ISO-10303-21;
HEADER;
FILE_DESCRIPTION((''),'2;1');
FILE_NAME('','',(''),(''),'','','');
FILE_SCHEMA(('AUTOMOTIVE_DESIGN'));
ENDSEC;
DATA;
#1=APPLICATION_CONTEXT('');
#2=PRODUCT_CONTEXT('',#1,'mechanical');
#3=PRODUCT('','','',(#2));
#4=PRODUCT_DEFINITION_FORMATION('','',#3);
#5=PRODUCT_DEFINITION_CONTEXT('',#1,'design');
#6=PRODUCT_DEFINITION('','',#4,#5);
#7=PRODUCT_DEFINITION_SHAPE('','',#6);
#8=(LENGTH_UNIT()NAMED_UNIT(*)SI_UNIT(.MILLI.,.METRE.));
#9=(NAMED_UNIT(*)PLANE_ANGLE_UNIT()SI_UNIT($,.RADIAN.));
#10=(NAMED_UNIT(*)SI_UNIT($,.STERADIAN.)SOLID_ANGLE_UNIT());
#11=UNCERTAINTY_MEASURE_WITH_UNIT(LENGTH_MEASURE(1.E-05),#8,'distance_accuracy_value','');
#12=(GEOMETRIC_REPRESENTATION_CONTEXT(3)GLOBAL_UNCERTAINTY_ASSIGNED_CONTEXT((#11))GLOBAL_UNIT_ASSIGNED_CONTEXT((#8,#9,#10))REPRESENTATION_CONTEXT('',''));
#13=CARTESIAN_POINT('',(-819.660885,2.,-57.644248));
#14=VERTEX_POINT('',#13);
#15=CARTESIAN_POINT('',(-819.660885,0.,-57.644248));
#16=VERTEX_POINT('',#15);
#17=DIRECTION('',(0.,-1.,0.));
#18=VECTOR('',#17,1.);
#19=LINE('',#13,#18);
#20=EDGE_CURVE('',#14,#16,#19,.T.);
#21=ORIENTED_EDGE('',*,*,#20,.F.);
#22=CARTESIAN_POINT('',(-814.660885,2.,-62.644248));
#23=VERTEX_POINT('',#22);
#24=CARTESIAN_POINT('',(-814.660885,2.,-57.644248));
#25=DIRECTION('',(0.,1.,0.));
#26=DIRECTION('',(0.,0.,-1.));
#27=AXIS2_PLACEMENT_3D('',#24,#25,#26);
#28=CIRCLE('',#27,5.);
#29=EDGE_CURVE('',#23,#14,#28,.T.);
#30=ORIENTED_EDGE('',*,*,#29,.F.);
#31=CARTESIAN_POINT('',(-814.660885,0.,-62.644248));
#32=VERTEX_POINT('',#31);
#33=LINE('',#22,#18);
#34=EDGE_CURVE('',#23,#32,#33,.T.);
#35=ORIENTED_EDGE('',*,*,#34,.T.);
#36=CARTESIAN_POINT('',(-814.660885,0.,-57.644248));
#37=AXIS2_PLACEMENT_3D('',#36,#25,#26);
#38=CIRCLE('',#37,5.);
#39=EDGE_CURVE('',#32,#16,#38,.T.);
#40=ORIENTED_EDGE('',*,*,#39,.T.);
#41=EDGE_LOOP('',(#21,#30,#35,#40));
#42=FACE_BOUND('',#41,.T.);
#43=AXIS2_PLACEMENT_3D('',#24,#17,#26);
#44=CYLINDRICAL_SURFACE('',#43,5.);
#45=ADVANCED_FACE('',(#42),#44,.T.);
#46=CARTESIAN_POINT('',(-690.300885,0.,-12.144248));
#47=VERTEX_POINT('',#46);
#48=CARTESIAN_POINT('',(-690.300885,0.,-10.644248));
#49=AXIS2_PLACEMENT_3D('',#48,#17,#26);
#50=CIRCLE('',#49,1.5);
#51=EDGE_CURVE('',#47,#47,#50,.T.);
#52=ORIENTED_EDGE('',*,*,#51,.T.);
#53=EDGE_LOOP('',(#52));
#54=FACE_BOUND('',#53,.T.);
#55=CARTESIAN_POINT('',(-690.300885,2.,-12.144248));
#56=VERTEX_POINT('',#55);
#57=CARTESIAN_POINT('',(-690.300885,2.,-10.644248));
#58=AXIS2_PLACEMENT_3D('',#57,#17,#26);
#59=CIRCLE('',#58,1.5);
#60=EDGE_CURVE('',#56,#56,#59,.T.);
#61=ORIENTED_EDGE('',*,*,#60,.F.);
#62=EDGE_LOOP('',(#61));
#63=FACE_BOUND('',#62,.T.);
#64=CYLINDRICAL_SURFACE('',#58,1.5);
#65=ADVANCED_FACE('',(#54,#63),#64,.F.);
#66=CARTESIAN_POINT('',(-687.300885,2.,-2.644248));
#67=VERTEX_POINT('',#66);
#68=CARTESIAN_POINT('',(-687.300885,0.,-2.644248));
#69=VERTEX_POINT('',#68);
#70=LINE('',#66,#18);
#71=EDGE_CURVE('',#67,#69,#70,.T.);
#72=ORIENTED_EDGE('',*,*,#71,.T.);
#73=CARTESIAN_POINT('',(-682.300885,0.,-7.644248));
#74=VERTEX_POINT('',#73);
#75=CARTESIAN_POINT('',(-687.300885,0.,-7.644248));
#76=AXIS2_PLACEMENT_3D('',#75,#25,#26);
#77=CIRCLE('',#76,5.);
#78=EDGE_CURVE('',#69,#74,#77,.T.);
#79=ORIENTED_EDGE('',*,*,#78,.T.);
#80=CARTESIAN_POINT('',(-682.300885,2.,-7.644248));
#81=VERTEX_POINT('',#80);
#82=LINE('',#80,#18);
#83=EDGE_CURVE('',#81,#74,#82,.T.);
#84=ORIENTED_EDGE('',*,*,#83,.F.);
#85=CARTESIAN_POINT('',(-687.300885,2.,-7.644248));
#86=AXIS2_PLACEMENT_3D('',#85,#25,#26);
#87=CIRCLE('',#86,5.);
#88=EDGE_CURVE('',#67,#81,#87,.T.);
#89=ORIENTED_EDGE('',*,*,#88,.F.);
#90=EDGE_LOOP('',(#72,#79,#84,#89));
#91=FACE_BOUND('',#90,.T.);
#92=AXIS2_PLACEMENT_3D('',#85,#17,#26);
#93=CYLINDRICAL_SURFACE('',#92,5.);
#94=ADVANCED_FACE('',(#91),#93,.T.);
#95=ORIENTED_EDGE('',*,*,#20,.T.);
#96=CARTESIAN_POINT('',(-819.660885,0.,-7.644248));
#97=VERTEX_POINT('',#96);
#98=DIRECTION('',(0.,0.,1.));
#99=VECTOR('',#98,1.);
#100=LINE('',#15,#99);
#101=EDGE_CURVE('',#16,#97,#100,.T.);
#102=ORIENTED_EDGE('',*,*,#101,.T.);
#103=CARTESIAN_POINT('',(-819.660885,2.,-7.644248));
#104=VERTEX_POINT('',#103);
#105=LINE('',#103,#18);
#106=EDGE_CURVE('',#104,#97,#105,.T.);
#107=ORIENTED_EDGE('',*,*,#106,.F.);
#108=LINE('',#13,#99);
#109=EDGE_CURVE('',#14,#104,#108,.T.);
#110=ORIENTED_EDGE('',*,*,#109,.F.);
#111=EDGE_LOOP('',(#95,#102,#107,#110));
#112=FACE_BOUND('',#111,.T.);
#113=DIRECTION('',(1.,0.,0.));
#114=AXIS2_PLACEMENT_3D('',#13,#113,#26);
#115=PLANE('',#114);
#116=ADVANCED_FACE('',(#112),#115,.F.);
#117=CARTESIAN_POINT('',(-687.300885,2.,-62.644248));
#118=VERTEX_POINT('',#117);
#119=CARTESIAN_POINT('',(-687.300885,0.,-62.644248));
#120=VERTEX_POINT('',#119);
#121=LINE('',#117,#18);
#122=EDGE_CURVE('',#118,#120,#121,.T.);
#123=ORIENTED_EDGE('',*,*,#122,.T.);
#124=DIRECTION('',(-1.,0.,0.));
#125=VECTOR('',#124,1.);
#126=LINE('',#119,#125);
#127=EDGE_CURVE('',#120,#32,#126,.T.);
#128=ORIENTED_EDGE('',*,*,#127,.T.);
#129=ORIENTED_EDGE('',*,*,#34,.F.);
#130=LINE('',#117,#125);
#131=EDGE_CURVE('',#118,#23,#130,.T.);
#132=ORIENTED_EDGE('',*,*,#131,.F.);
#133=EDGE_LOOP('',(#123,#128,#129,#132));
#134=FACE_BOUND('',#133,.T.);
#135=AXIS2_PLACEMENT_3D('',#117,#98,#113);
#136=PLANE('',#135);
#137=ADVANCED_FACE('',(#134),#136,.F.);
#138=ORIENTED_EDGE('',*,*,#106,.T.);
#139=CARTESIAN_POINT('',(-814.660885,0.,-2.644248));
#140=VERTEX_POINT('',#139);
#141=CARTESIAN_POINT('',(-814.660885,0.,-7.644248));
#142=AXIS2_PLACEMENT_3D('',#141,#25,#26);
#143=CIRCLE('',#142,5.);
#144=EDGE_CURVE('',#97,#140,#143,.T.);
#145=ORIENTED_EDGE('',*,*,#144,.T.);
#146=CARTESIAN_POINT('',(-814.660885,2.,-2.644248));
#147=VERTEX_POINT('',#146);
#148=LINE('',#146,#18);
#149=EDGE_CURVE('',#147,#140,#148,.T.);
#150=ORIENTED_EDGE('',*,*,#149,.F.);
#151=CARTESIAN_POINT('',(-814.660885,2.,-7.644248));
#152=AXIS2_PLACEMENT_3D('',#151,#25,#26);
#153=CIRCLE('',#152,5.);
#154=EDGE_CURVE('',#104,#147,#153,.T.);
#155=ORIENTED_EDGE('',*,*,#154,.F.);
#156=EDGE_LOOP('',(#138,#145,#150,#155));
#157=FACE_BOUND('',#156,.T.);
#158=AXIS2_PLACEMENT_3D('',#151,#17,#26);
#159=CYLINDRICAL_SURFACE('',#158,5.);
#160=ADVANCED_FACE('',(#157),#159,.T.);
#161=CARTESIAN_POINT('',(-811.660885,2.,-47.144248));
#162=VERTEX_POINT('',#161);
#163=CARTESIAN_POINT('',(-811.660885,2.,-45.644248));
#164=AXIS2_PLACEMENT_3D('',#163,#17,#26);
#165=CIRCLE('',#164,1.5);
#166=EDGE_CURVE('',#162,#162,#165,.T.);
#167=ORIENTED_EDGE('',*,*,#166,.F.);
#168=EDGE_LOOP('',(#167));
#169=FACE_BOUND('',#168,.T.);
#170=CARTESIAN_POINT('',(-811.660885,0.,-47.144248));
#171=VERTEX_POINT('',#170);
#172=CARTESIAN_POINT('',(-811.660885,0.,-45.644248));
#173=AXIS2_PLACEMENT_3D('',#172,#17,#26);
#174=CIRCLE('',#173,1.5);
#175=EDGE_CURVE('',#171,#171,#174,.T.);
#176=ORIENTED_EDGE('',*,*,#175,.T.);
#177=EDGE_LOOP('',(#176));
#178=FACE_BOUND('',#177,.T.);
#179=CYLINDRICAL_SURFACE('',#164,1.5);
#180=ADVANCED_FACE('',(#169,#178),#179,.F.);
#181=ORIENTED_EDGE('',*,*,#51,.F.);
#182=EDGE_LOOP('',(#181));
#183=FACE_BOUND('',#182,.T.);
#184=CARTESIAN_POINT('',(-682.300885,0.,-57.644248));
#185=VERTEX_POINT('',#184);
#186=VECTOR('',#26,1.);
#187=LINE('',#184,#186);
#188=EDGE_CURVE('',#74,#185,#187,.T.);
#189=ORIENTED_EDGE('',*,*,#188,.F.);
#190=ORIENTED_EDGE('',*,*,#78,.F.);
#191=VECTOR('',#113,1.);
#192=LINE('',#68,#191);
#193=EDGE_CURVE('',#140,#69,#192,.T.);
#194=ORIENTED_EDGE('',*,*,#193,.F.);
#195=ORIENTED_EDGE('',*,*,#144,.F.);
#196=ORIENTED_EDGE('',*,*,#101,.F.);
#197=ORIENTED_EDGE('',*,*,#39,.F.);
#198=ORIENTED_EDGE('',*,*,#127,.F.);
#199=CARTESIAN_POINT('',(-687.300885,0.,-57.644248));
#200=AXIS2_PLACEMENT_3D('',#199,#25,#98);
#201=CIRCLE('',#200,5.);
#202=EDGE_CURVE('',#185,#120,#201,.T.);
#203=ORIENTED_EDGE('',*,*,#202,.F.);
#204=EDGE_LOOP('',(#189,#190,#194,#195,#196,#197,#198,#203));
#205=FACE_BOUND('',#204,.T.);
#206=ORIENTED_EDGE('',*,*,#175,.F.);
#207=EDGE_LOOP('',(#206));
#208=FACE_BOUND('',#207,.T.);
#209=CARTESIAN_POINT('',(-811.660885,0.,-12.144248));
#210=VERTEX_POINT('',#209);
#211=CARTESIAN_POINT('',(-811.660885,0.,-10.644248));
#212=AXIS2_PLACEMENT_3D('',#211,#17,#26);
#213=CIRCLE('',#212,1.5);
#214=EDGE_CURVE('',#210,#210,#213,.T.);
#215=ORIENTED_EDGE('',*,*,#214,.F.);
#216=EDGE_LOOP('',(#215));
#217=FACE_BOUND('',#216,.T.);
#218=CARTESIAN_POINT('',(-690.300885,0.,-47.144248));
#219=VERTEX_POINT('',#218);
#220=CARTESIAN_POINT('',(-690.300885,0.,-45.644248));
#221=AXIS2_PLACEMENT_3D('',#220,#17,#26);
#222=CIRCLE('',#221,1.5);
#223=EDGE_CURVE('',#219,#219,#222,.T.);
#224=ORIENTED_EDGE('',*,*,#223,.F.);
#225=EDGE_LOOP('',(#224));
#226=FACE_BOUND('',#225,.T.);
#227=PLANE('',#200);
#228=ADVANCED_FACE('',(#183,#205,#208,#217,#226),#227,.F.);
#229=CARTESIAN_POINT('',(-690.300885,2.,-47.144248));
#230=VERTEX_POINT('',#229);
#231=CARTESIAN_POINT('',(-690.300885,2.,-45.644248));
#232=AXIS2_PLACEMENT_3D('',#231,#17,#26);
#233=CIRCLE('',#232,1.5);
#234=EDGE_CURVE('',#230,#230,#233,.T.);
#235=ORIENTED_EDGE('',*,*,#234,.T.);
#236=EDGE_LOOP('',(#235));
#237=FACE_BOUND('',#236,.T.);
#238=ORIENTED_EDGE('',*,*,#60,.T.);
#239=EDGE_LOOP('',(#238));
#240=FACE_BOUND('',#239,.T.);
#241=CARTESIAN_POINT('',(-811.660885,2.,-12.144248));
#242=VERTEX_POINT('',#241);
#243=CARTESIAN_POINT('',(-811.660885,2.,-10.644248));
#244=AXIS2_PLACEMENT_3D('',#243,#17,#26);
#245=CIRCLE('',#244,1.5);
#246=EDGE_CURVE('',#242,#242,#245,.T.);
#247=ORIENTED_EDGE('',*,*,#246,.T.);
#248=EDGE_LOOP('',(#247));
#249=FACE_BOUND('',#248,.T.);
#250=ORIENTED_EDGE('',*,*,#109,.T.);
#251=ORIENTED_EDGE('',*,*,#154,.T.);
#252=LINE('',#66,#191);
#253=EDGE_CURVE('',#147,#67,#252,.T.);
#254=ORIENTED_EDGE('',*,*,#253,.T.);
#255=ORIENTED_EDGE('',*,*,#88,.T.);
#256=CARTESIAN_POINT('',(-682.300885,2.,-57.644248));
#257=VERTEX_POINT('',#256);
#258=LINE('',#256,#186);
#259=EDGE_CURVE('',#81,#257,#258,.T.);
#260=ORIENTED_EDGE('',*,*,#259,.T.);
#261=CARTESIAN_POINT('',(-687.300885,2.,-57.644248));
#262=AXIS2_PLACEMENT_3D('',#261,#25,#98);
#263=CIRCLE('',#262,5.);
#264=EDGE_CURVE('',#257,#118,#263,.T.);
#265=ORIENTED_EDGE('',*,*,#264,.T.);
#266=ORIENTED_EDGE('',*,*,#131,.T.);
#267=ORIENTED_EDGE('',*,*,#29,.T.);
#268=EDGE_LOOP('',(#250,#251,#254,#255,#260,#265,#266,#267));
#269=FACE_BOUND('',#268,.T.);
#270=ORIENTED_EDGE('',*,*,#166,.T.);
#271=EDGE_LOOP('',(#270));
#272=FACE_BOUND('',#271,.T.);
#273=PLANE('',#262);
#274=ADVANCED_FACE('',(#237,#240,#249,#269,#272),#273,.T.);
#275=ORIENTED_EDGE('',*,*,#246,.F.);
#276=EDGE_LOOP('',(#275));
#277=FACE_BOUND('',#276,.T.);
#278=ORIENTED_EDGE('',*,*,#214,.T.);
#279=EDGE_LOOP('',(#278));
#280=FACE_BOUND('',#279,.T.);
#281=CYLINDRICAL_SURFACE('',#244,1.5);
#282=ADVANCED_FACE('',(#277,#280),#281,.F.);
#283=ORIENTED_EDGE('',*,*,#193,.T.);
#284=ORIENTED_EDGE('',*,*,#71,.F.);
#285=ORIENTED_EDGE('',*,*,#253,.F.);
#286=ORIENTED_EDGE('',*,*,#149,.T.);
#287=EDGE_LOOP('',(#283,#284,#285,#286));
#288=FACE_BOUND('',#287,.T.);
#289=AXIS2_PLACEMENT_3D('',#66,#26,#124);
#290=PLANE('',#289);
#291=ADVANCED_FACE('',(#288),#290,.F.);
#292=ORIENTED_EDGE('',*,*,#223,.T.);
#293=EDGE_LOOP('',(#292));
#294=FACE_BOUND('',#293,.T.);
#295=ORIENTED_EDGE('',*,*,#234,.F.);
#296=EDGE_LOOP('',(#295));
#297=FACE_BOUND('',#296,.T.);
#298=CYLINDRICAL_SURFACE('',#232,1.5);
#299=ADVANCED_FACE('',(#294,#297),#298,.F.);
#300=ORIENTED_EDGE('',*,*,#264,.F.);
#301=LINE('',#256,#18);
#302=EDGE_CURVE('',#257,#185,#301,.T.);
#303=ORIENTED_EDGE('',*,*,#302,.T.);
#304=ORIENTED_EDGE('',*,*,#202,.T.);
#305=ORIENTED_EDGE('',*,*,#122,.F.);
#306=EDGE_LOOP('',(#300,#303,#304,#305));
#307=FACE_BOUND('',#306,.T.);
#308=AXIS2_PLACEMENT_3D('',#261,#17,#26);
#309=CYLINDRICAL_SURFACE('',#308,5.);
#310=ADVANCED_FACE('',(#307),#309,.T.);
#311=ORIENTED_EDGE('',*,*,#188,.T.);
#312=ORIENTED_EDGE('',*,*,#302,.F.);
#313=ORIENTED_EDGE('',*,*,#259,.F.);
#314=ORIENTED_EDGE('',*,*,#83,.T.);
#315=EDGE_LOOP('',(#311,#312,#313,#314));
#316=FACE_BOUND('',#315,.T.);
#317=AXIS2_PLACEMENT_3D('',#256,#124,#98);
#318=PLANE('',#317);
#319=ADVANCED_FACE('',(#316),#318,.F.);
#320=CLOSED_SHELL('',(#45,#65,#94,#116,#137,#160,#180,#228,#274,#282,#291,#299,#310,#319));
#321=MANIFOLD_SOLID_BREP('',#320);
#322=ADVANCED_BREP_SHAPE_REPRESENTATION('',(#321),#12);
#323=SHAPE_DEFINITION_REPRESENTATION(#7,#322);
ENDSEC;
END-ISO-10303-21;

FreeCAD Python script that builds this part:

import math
import FreeCAD as App
import Part
import Sketcher
from FreeCAD import Vector

doc = App.newDocument("Part")
body = doc.addObject("PartDesign::Body", "Body")

# Sketch on XZ plane
sketch1 = body.newObject("Sketcher::SketchObject", "Sketch")
sketch1.AttachmentSupport = (doc.getObject("XZ_Plane"), [""])
sketch1.MapMode = "FlatFace"
sketch1.addGeometry([
    Part.LineSegment(Vector(-687, -63, 0), Vector(-815, -63, 0)),  # 0
    Part.ArcOfCircle(Part.Circle(Vector(-815, -58, 0), Vector(0, 0, 1), 5), math.radians(180), math.radians(270)),  # 1
    Part.LineSegment(Vector(-820, -58, 0), Vector(-820, -8, 0)),  # 2
    Part.ArcOfCircle(Part.Circle(Vector(-815, -8, 0), Vector(0, 0, 1), 5), math.radians(90), math.radians(180)),  # 3
    Part.LineSegment(Vector(-815, -3, 0), Vector(-687, -3, 0)),  # 4
    Part.ArcOfCircle(Part.Circle(Vector(-687, -8, 0), Vector(0, 0, 1), 5), math.radians(0), math.radians(90)),  # 5
    Part.LineSegment(Vector(-682, -8, 0), Vector(-682, -58, 0)),  # 6
    Part.ArcOfCircle(Part.Circle(Vector(-687, -58, 0), Vector(0, 0, 1), 5), math.radians(-90), math.radians(0)),  # 7
], False)
sketch1.addConstraint([
    Sketcher.Constraint("Tangent", 0, 2, 1, 2),
    Sketcher.Constraint("Tangent", 1, 1, 2, 1),
    Sketcher.Constraint("Tangent", 2, 2, 3, 2),
    Sketcher.Constraint("Tangent", 3, 1, 4, 1),
    Sketcher.Constraint("Tangent", 4, 2, 5, 2),
    Sketcher.Constraint("Tangent", 5, 1, 6, 1),
    Sketcher.Constraint("Tangent", 6, 2, 7, 2),
    Sketcher.Constraint("Tangent", 7, 1, 0, 1),
    Sketcher.Constraint("Horizontal", 0),
    Sketcher.Constraint("Vertical", 2),
    Sketcher.Constraint("Horizontal", 4),
    Sketcher.Constraint("Vertical", 6),
    Sketcher.Constraint("Equal", 1, 3),
    Sketcher.Constraint("Equal", 3, 5),
    Sketcher.Constraint("Equal", 5, 7),
    Sketcher.Constraint("Radius", 1, 5.0),
    Sketcher.Constraint("DistanceY", 2, 1, 2, 2, 50.0),
    Sketcher.Constraint("DistanceX", 0, 2, 0, 1, 127.36),
    Sketcher.Constraint("DistanceX", 1, 3, -1, 1, 814.660885),
    Sketcher.Constraint("DistanceY", 1, 3, -1, 1, 57.644248),
])
pad1 = body.newObject("PartDesign::Pad", "Pad")
pad1.Profile = sketch1
pad1.Length = 2
pad1.Reversed = True

# Sketch on XZ plane
sketch2 = body.newObject("Sketcher::SketchObject", "Sketch001")
sketch2.AttachmentSupport = (doc.getObject("XZ_Plane"), [""])
sketch2.MapMode = "FlatFace"
sketch2.addGeometry([
    Part.Circle(Vector(-811.7, -10.6, 0), Vector(0, 0, 1), 1.5),
    Part.Circle(Vector(-811.7, -45.6, 0), Vector(0, 0, 1), 1.5),
    Part.Circle(Vector(-690.3, -10.6, 0), Vector(0, 0, 1), 1.5),
    Part.Circle(Vector(-690.3, -45.6, 0), Vector(0, 0, 1), 1.5),
], False)
sketch2.addConstraint([
    Sketcher.Constraint("Equal", 0, 1),
    Sketcher.Constraint("Equal", 1, 2),
    Sketcher.Constraint("Equal", 2, 3),
    Sketcher.Constraint("Horizontal", 0, 3, 2, 3),
    Sketcher.Constraint("Horizontal", 1, 3, 3, 3),
    Sketcher.Constraint("Vertical", 0, 3, 1, 3),
    Sketcher.Constraint("Vertical", 2, 3, 3, 3),
    Sketcher.Constraint("Diameter", 0, 3.0),
    Sketcher.Constraint("DistanceY", 1, 3, 0, 3, 35.0),
    Sketcher.Constraint("DistanceX", 0, 3, 2, 3, 121.36),
    Sketcher.Constraint("DistanceX", 0, 3, -1, 1, 811.660885),
    Sketcher.Constraint("DistanceY", 0, 3, -1, 1, 10.644248),
])
pocket1 = body.newObject("PartDesign::Pocket", "Pocket")
pocket1.Profile = sketch2
pocket1.Type = "ThroughAll"

doc.recompute()
